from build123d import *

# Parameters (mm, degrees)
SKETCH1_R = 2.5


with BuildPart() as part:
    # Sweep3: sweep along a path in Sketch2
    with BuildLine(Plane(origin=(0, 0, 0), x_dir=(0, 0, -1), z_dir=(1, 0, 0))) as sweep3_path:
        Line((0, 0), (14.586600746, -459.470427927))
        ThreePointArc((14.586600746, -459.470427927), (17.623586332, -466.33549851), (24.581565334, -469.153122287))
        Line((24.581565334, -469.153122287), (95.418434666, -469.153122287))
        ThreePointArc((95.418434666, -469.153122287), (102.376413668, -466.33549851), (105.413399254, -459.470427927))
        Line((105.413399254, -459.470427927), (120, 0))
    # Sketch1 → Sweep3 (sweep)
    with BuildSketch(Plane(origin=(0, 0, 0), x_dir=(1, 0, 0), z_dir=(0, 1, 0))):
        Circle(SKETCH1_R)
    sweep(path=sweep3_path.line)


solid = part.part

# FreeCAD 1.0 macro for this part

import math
import FreeCAD as App
import Part
import Sketcher

doc = App.newDocument("Part")
params = doc.addObject("Spreadsheet::Sheet", "Params")
for row, (alias, value) in enumerate([
    ("sketch1_diameter", "5 mm"),
    ("sketch2_radius", "10 mm"),
], start=1):
    params.set(f"A{row}", alias)
    params.set(f"B{row}", "=" + value)
    params.setAlias(f"B{row}", alias)

body = doc.addObject("PartDesign::Body", "Body")

# Sketch on XZ plane
sketch1 = doc.addObject("Sketcher::SketchObject", "Sketch")
body.addObject(sketch1)
sketch1.AttachmentSupport = (doc.XZ_Plane, [""])
sketch1.MapMode = "FlatFace"
sketch1.addGeometry(Part.Circle(App.Vector(0, 0, 0), App.Vector(0, 0, 1), 2.5), False)
sketch1.addConstraint([
    Sketcher.Constraint("Coincident", 0, 3, -1, 1),
    Sketcher.Constraint("Diameter", 0, 5.0),
])
sketch1.setExpression("Constraints[1]", "Params.sketch1_diameter")

# Sketch on YZ plane
sketch2 = doc.addObject("Sketcher::SketchObject", "Sketch001")
body.addObject(sketch2)
sketch2.AttachmentSupport = (doc.YZ_Plane, [""])
sketch2.MapMode = "FlatFace"
sketch2.addGeometry([
    Part.LineSegment(App.Vector(0, 0, 0), App.Vector(-459, -15, 0)),  # 0
    Part.ArcOfCircle(Part.Circle(App.Vector(-459, -25, 0), App.Vector(0, 0, 1), 10), math.radians(92), math.radians(180)),  # 1
    Part.LineSegment(App.Vector(-469, -25, 0), App.Vector(-469, -95, 0)),  # 2
    Part.ArcOfCircle(Part.Circle(App.Vector(-459, -95, 0), App.Vector(0, 0, 1), 10), math.radians(180), math.radians(268)),  # 3
    Part.LineSegment(App.Vector(-459, -105, 0), App.Vector(0, -120, 0)),  # 4
], False)
sketch2.addConstraint([
    Sketcher.Constraint("Tangent", 0, 2, 1, 1),
    Sketcher.Constraint("Tangent", 1, 2, 2, 1),
    Sketcher.Constraint("Tangent", 2, 2, 3, 1),
    Sketcher.Constraint("Tangent", 3, 2, 4, 1),
    Sketcher.Constraint("Vertical", 2),
    Sketcher.Constraint("Coincident", 0, 1, -1, 1),
    Sketcher.Constraint("Equal", 1, 3),
    Sketcher.Constraint("PointOnObject", 4, 2, -2),
    Sketcher.Constraint("Vertical", 0, 2, 3, 2),
    Sketcher.Constraint("Radius", 1, 10.0),
    Sketcher.Constraint("DistanceY", 4, 2, -1, 1, 120.0),
    Sketcher.Constraint("DistanceY", 2, 2, 2, 1, 70.836869),
    Sketcher.Constraint("Distance", 0, 459.701907),
])
sketch2.setExpression("Constraints[9]", "Params.sketch2_radius")
doc.recompute()

additivepipe = doc.addObject("PartDesign::AdditivePipe", "AdditivePipe")
body.addObject(additivepipe)
additivepipe.Profile = sketch1
additivepipe.Spine = (sketch2, ["Edge1", "Edge2", "Edge3", "Edge4", "Edge5"])

doc.recompute()
